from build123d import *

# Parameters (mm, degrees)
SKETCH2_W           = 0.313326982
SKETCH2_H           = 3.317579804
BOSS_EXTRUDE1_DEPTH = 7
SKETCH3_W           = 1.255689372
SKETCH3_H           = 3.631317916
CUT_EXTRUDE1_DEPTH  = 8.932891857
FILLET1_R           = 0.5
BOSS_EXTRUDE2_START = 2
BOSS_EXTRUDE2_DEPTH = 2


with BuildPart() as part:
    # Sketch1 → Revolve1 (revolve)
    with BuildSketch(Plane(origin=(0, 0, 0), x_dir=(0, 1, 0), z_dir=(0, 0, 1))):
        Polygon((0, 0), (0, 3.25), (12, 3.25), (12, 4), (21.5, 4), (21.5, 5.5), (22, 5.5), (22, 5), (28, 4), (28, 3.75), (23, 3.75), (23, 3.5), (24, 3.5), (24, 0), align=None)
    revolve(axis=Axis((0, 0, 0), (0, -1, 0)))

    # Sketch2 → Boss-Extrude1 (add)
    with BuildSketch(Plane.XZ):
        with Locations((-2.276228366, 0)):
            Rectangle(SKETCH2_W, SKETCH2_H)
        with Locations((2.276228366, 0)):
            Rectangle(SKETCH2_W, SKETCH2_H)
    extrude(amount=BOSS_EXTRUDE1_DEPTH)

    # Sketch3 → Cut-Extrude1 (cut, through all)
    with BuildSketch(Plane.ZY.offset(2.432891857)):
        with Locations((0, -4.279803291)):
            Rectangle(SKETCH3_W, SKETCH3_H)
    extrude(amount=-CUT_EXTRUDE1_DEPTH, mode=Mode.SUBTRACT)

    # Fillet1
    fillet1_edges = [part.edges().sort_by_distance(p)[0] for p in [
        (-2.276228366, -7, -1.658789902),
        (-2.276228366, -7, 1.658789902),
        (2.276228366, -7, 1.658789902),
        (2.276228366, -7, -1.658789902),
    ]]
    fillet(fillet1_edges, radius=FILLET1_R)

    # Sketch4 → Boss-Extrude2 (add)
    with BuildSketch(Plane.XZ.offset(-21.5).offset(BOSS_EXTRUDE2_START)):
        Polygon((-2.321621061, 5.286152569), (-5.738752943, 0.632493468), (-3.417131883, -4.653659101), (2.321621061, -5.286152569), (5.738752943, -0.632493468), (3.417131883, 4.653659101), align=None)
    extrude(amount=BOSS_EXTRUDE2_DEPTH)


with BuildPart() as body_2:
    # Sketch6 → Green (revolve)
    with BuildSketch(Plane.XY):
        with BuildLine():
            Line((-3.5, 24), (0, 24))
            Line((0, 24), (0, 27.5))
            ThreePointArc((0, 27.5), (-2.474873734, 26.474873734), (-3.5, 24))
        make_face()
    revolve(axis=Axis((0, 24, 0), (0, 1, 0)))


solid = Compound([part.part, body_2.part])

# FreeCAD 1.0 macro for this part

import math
import FreeCAD as App
import Part
import Sketcher

V = App.Vector


def edges_at(feature, points):
    """Names of the edges that pass closest to the given points."""
    edges = feature.Shape.Edges
    near = lambda p: min(range(len(edges)), key=lambda i: edges[i].distToShape(Part.Vertex(*p))[0])
    return sorted({f"Edge{near(p) + 1}" for p in points})

doc = App.newDocument("Part")
params = doc.addObject("Spreadsheet::Sheet", "Params")
for row, (alias, value) in enumerate([
    ("sketch1_height", "24 mm"),
    ("sketch1_height2", "1 mm"),
    ("sketch1_height3", "5 mm"),
    ("sketch1_height4", "12 mm"),
    ("sketch1_width", "3.5 mm"),
    ("revolution_angle", "360 deg"),
    ("pad1_length", "7 mm"),
    ("fillet_radius", "0.5 mm"),
    ("pad2_length", "2 mm"),
    ("sketch5_radius", "3.5 mm"),
    ("revolution2_angle", "360 deg"),
], start=1):
    params.set(f"A{row}", alias)
    params.set(f"B{row}", "=" + value)
    params.setAlias(f"B{row}", alias)

body = doc.addObject("PartDesign::Body", "Body")

# Sketch on XY plane
sketch1 = body.newObject("Sketcher::SketchObject", "Sketch")
sketch1.AttachmentSupport = (doc.getObject("XY_Plane"), [""])
sketch1.MapMode = "FlatFace"
sketch1.addGeometry(Part.LineSegment(V(-3.25, 0, 0), V(0, 0, 0)), False)
sketch1.addGeometry(Part.LineSegment(V(0, 0, 0), V(0, 24, 0)), False)
sketch1.addGeometry(Part.LineSegment(V(0, 24, 0), V(-3.5, 24, 0)), False)
sketch1.addGeometry(Part.LineSegment(V(-3.5, 24, 0), V(-3.5, 23, 0)), False)
sketch1.addGeometry(Part.LineSegment(V(-3.5, 23, 0), V(-3.75, 23, 0)), False)
sketch1.addGeometry(Part.LineSegment(V(-3.75, 23, 0), V(-3.75, 28, 0)), False)
sketch1.addGeometry(Part.LineSegment(V(-3.75, 28, 0), V(-4, 28, 0)), False)
sketch1.addGeometry(Part.LineSegment(V(-4, 28, 0), V(-5, 22, 0)), False)
sketch1.addGeometry(Part.LineSegment(V(-5, 22, 0), V(-5.5, 22, 0)), False)
sketch1.addGeometry(Part.LineSegment(V(-5.5, 22, 0), V(-5.5, 21.5, 0)), False)
sketch1.addGeometry(Part.LineSegment(V(-5.5, 21.5, 0), V(-4, 21.5, 0)), False)
sketch1.addGeometry(Part.LineSegment(V(-4, 21.5, 0), V(-4, 12, 0)), False)
sketch1.addGeometry(Part.LineSegment(V(-4, 12, 0), V(-3.25, 12, 0)), False)
sketch1.addGeometry(Part.LineSegment(V(-3.25, 12, 0), V(-3.25, 0, 0)), False)
sketch1.addConstraint(Sketcher.Constraint("Coincident", 0, 2, 1, 1))
sketch1.addConstraint(Sketcher.Constraint("Coincident", 1, 2, 2, 1))
sketch1.addConstraint(Sketcher.Constraint("Coincident", 2, 2, 3, 1))
sketch1.addConstraint(Sketcher.Constraint("Coincident", 3, 2, 4, 1))
sketch1.addConstraint(Sketcher.Constraint("Coincident", 4, 2, 5, 1))
sketch1.addConstraint(Sketcher.Constraint("Coincident", 5, 2, 6, 1))
sketch1.addConstraint(Sketcher.Constraint("Coincident", 6, 2, 7, 1))
sketch1.addConstraint(Sketcher.Constraint("Coincident", 7, 2, 8, 1))
sketch1.addConstraint(Sketcher.Constraint("Coincident", 8, 2, 9, 1))
sketch1.addConstraint(Sketcher.Constraint("Coincident", 9, 2, 10, 1))
sketch1.addConstraint(Sketcher.Constraint("Coincident", 10, 2, 11, 1))
sketch1.addConstraint(Sketcher.Constraint("Coincident", 11, 2, 12, 1))
sketch1.addConstraint(Sketcher.Constraint("Coincident", 12, 2, 13, 1))
sketch1.addConstraint(Sketcher.Constraint("Coincident", 13, 2, 0, 1))
sketch1.addConstraint(Sketcher.Constraint("Horizontal", 0))
sketch1.addConstraint(Sketcher.Constraint("Vertical", 1))
sketch1.addConstraint(Sketcher.Constraint("Horizontal", 2))
sketch1.addConstraint(Sketcher.Constraint("Vertical", 3))
sketch1.addConstraint(Sketcher.Constraint("Horizontal", 4))
sketch1.addConstraint(Sketcher.Constraint("Vertical", 5))
sketch1.addConstraint(Sketcher.Constraint("Horizontal", 6))
sketch1.addConstraint(Sketcher.Constraint("Horizontal", 8))
sketch1.addConstraint(Sketcher.Constraint("Vertical", 9))
sketch1.addConstraint(Sketcher.Constraint("Horizontal", 10))
sketch1.addConstraint(Sketcher.Constraint("Vertical", 11))
sketch1.addConstraint(Sketcher.Constraint("Horizontal", 12))
sketch1.addConstraint(Sketcher.Constraint("Vertical", 13))
sketch1.addConstraint(Sketcher.Constraint("Coincident", 0, 2, -1, 1))
sketch1.addConstraint(Sketcher.Constraint("Vertical", 6, 2, 10, 2))
sketch1.addConstraint(Sketcher.Constraint("Equal", 4, 6))
sketch1.addConstraint(Sketcher.Constraint("Equal", 8, 9))
sketch1.addConstraint(Sketcher.Constraint("DistanceY", 1, 1, 1, 2, 24.0))
sketch1.addConstraint(Sketcher.Constraint("DistanceY", 3, 2, 3, 1, 1.0))
sketch1.addConstraint(Sketcher.Constraint("DistanceY", 5, 1, 5, 2, 5.0))
sketch1.addConstraint(Sketcher.Constraint("DistanceY", 13, 2, 13, 1, 12.0))
sketch1.addConstraint(Sketcher.Constraint("DistanceX", 2, 2, 2, 1, 3.5))
sketch1.addConstraint(Sketcher.Constraint("DistanceX", 8, 2, 8, 1, 0.5))
sketch1.addConstraint(Sketcher.Constraint("DistanceX", 10, 1, 10, 2, 1.5))
sketch1.addConstraint(Sketcher.Constraint("DistanceY", 11, 2, 11, 1, 9.5))
sketch1.addConstraint(Sketcher.Constraint("DistanceX", 6, 2, -1, 1, 4.0))
sketch1.addConstraint(Sketcher.Constraint("DistanceX", 0, 1, 0, 2, 3.25))
sketch1.setExpression("Constraints[31]", "Params.sketch1_height")
sketch1.setExpression("Constraints[32]", "Params.sketch1_height2")
sketch1.setExpression("Constraints[33]", "Params.sketch1_height3")
sketch1.setExpression("Constraints[34]", "Params.sketch1_height4")
sketch1.setExpression("Constraints[35]", "Params.sketch1_width")
revolution = body.newObject("PartDesign::Revolution", "Revolution")
revolution.Profile = sketch1
revolution.ReferenceAxis = (sketch1, ["V_Axis"])
revolution.setExpression("Angle", "Params.revolution_angle")

# Sketch on XZ plane
sketch2 = body.newObject("Sketcher::SketchObject", "Sketch001")
sketch2.AttachmentSupport = (doc.getObject("XZ_Plane"), [""])
sketch2.MapMode = "FlatFace"
sketch2.addGeometry(Part.LineSegment(V(-2.43, 1.66, 0), V(-2.43, -1.66, 0)), False)
sketch2.addGeometry(Part.LineSegment(V(-2.43, -1.66, 0), V(-2.12, -1.66, 0)), False)
sketch2.addGeometry(Part.LineSegment(V(-2.12, -1.66, 0), V(-2.12, 1.66, 0)), False)
sketch2.addGeometry(Part.LineSegment(V(-2.12, 1.66, 0), V(-2.43, 1.66, 0)), False)
sketch2.addGeometry(Part.LineSegment(V(2.12, 1.66, 0), V(2.12, -1.66, 0)), False)
sketch2.addGeometry(Part.LineSegment(V(2.12, -1.66, 0), V(2.43, -1.66, 0)), False)
sketch2.addGeometry(Part.LineSegment(V(2.43, -1.66, 0), V(2.43, 1.66, 0)), False)
sketch2.addGeometry(Part.LineSegment(V(2.43, 1.66, 0), V(2.12, 1.66, 0)), False)
sketch2.addConstraint(Sketcher.Constraint("Coincident", 0, 2, 1, 1))
sketch2.addConstraint(Sketcher.Constraint("Coincident", 1, 2, 2, 1))
sketch2.addConstraint(Sketcher.Constraint("Coincident", 2, 2, 3, 1))
sketch2.addConstraint(Sketcher.Constraint("Coincident", 3, 2, 0, 1))
sketch2.addConstraint(Sketcher.Constraint("Coincident", 4, 2, 5, 1))
sketch2.addConstraint(Sketcher.Constraint("Coincident", 5, 2, 6, 1))
sketch2.addConstraint(Sketcher.Constraint("Coincident", 6, 2, 7, 1))
sketch2.addConstraint(Sketcher.Constraint("Coincident", 7, 2, 4, 1))
sketch2.addConstraint(Sketcher.Constraint("Vertical", 0))
sketch2.addConstraint(Sketcher.Constraint("Horizontal", 1))
sketch2.addConstraint(Sketcher.Constraint("Vertical", 2))
sketch2.addConstraint(Sketcher.Constraint("Horizontal", 3))
sketch2.addConstraint(Sketcher.Constraint("Vertical", 4))
sketch2.addConstraint(Sketcher.Constraint("Horizontal", 5))
sketch2.addConstraint(Sketcher.Constraint("Vertical", 6))
sketch2.addConstraint(Sketcher.Constraint("Horizontal", 7))
sketch2.addConstraint(Sketcher.Constraint("Symmetric", 2, 2, 4, 2, -1, 1))
sketch2.addConstraint(Sketcher.Constraint("Symmetric", 0, 2, 6, 2, -1, 1))
sketch2.addConstraint(Sketcher.Constraint("Horizontal", 1, 2, 4, 2))
sketch2.addConstraint(Sketcher.Constraint("DistanceY", 0, 2, 0, 1, 3.31758))
sketch2.addConstraint(Sketcher.Constraint("DistanceX", 1, 1, 1, 2, 0.313327))
sketch2.addConstraint(Sketcher.Constraint("DistanceX", 0, 2, -1, 1, 2.432892))
pad1 = body.newObject("PartDesign::Pad", "Pad")
pad1.Profile = sketch2
pad1.setExpression("Length", "Params.pad1_length")

# Sketch on YZ plane
sketch3 = body.newObject("Sketcher::SketchObject", "Sketch002")
sketch3.AttachmentSupport = (doc.getObject("YZ_Plane"), [""])
sketch3.MapMode = "FlatFace"
sketch3.AttachmentOffset = App.Placement(V(0, 0, -2.432892), App.Rotation())
sketch3.addGeometry(Part.LineSegment(V(-2.5, -0.6, 0), V(-6.1, -0.6, 0)), False)
sketch3.addGeometry(Part.LineSegment(V(-6.1, -0.6, 0), V(-6.1, 0.6, 0)), False)
sketch3.addGeometry(Part.LineSegment(V(-6.1, 0.6, 0), V(-2.5, 0.6, 0)), False)
sketch3.addGeometry(Part.LineSegment(V(-2.5, 0.6, 0), V(-2.5, -0.6, 0)), False)
sketch3.addConstraint(Sketcher.Constraint("Coincident", 0, 2, 1, 1))
sketch3.addConstraint(Sketcher.Constraint("Coincident", 1, 2, 2, 1))
sketch3.addConstraint(Sketcher.Constraint("Coincident", 2, 2, 3, 1))
sketch3.addConstraint(Sketcher.Constraint("Coincident", 3, 2, 0, 1))
sketch3.addConstraint(Sketcher.Constraint("Horizontal", 0))
sketch3.addConstraint(Sketcher.Constraint("Vertical", 1))
sketch3.addConstraint(Sketcher.Constraint("Horizontal", 2))
sketch3.addConstraint(Sketcher.Constraint("Vertical", 3))
sketch3.addConstraint(Sketcher.Constraint("DistanceY", 1, 1, 1, 2, 1.255689))
sketch3.addConstraint(Sketcher.Constraint("DistanceX", 0, 2, 0, 1, 3.631318))
sketch3.addConstraint(Sketcher.Constraint("DistanceX", 0, 2, -1, 1, 6.095462))
sketch3.addConstraint(Sketcher.Constraint("DistanceY", 0, 2, -1, 1, 0.627845))
pocket1 = body.newObject("PartDesign::Pocket", "Pocket")
pocket1.Profile = sketch3
pocket1.Type = "ThroughAll"
pocket1.Reversed = True
doc.recompute()

fillet = body.newObject("PartDesign::Fillet", "Fillet")
fillet.Base = (pocket1, edges_at(pocket1, [
    (-2.276, -7, -1.659),
    (-2.276, -7, 1.659),
    (2.276, -7, 1.659),
    (2.276, -7, -1.659),
]))
fillet.setExpression("Radius", "Params.fillet_radius")

# Sketch on XZ plane
sketch4 = body.newObject("Sketcher::SketchObject", "Sketch003")
sketch4.AttachmentSupport = (doc.getObject("XZ_Plane"), [""])
sketch4.MapMode = "FlatFace"
sketch4.AttachmentOffset = App.Placement(V(0, 0, -19.5), App.Rotation())
sketch4.addGeometry(Part.LineSegment(V(-2, 5, 0), V(-6, 1, 0)), False)
sketch4.addGeometry(Part.LineSegment(V(-6, 1, 0), V(-3, -5, 0)), False)
sketch4.addGeometry(Part.LineSegment(V(-3, -5, 0), V(2, -5, 0)), False)
sketch4.addGeometry(Part.LineSegment(V(2, -5, 0), V(6, -1, 0)), False)
sketch4.addGeometry(Part.LineSegment(V(6, -1, 0), V(3, 5, 0)), False)
sketch4.addGeometry(Part.LineSegment(V(3, 5, 0), V(-2, 5, 0)), False)
sketch4.addConstraint(Sketcher.Constraint("Coincident", 0, 2, 1, 1))
sketch4.addConstraint(Sketcher.Constraint("Coincident", 1, 2, 2, 1))
sketch4.addConstraint(Sketcher.Constraint("Coincident", 2, 2, 3, 1))
sketch4.addConstraint(Sketcher.Constraint("Coincident", 3, 2, 4, 1))
sketch4.addConstraint(Sketcher.Constraint("Coincident", 4, 2, 5, 1))
sketch4.addConstraint(Sketcher.Constraint("Coincident", 5, 2, 0, 1))
sketch4.addConstraint(Sketcher.Constraint("Symmetric", 0, 2, 3, 2, -1, 1))
sketch4.addConstraint(Sketcher.Constraint("Symmetric", 1, 2, 4, 2, -1, 1))
sketch4.addConstraint(Sketcher.Constraint("Symmetric", 2, 2, 5, 2, -1, 1))
sketch4.addConstraint(Sketcher.Constraint("Equal", 0, 1))
sketch4.addConstraint(Sketcher.Constraint("Equal", 1, 2))
sketch4.addConstraint(Sketcher.Constraint("DistanceX", 1, 2, -1, 1, 3.417132))
sketch4.addConstraint(Sketcher.Constraint("DistanceY", 1, 2, -1, 1, 4.653659))
sketch4.addConstraint(Sketcher.Constraint("DistanceX", -1, 1, 2, 2, 2.321621))
sketch4.addConstraint(Sketcher.Constraint("DistanceX", 0, 2, 1, 2, 2.321621))
pad2 = body.newObject("PartDesign::Pad", "Pad001")
pad2.Profile = sketch4
pad2.setExpression("Length", "Params.pad2_length")
body2 = doc.addObject("PartDesign::Body", "Body001")

# Sketch on XY plane
sketch5 = body2.newObject("Sketcher::SketchObject", "Sketch004")
sketch5.AttachmentSupport = (doc.getObject("XY_Plane001"), [""])
sketch5.MapMode = "FlatFace"
sketch5.addGeometry(Part.LineSegment(V(-3.5, 24, 0), V(0, 24, 0)), False)
sketch5.addGeometry(Part.LineSegment(V(0, 24, 0), V(0, 27.5, 0)), False)
sketch5.addGeometry(Part.ArcOfCircle(Part.Circle(V(0, 24, 0), V(0, 0, 1), 3.5), math.radians(90), math.radians(180)), False)
sketch5.addConstraint(Sketcher.Constraint("Coincident", 0, 2, 1, 1))
sketch5.addConstraint(Sketcher.Constraint("Coincident", 1, 2, 2, 1))
sketch5.addConstraint(Sketcher.Constraint("Coincident", 2, 2, 0, 1))
sketch5.addConstraint(Sketcher.Constraint("Horizontal", 0))
sketch5.addConstraint(Sketcher.Constraint("Vertical", 1))
sketch5.addConstraint(Sketcher.Constraint("Coincident", 0, 2, 2, 3))
sketch5.addConstraint(Sketcher.Constraint("PointOnObject", 2, 3, -2))
sketch5.addConstraint(Sketcher.Constraint("Radius", 2, 3.5))
sketch5.addConstraint(Sketcher.Constraint("DistanceY", -1, 1, 2, 3, 24.0))
sketch5.setExpression("Constraints[7]", "Params.sketch5_radius")
revolution2 = body2.newObject("PartDesign::Revolution", "Revolution001")
revolution2.Profile = sketch5
revolution2.ReferenceAxis = (sketch5, ["V_Axis"])
revolution2.setExpression("Angle", "Params.revolution2_angle")

doc.recompute()
